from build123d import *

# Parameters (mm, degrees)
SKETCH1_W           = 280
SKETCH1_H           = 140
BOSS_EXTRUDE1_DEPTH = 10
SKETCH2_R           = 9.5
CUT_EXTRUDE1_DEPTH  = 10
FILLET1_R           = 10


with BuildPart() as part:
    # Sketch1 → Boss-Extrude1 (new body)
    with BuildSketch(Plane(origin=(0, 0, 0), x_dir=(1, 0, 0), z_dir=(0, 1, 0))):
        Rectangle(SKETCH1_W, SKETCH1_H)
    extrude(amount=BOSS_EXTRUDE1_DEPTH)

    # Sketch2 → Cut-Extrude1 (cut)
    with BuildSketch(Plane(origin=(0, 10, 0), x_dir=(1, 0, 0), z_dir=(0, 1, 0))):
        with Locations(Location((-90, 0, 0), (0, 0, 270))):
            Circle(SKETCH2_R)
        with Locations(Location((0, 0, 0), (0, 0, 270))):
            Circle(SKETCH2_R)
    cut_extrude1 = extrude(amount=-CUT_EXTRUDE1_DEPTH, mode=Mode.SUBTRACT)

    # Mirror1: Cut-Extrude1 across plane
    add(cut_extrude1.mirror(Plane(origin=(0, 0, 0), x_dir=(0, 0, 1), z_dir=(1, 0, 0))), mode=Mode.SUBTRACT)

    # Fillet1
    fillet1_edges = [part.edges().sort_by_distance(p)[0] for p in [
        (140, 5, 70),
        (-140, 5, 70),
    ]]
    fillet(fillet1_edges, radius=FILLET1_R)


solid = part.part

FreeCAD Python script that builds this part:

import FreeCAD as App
import Part
import Sketcher


def edges_at(feature, points):
    """Names of the edges that pass closest to the given points."""
    edges = feature.Shape.Edges
    near = lambda p: min(range(len(edges)), key=lambda i: edges[i].distToShape(Part.Vertex(*p))[0])
    return sorted({f"Edge{near(p) + 1}" for p in points})


def add_polygon(sketch, points):
    """Adds a closed chain of lines whose ends are joined by coincident constraints."""
    first, n = sketch.GeometryCount, len(points)
    for a, b in zip(points, points[1:] + points[:1]):
        sketch.addGeometry(Part.LineSegment(App.Vector(*a, 0), App.Vector(*b, 0)), False)
    for i in range(n):
        sketch.addConstraint(Sketcher.Constraint("Coincident", first + i, 2, first + (i + 1) % n, 1))

doc = App.newDocument("Part")
params = doc.addObject("Spreadsheet::Sheet", "Params")
for row, (alias, value) in enumerate([
    ("sketch1_width", "280 mm"),
    ("sketch1_height", "140 mm"),
    ("pad1_length", "10 mm"),
    ("sketch2_diameter", "19 mm"),
    ("pocket1_length", "10 mm"),
    ("fillet_radius", "10 mm"),
], start=1):
    params.set(f"A{row}", alias)
    params.set(f"B{row}", "=" + value)
    params.setAlias(f"B{row}", alias)

body = doc.addObject("PartDesign::Body", "Body")

# Sketch on XZ plane
sketch1 = doc.addObject("Sketcher::SketchObject", "Sketch")
body.addObject(sketch1)
sketch1.AttachmentSupport = (doc.XZ_Plane, [""])
sketch1.MapMode = "FlatFace"
add_polygon(sketch1, [(-140, -70), (-140, 70), (140, 70), (140, -70)])  # lines 0-3
sketch1.addConstraint([
    Sketcher.Constraint("Vertical", 0),
    Sketcher.Constraint("Horizontal", 1),
    Sketcher.Constraint("Vertical", 2),
    Sketcher.Constraint("Horizontal", 3),
    Sketcher.Constraint("Symmetric", 0, 2, 2, 2, -1, 1),
    Sketcher.Constraint("DistanceX", 1, 1, 1, 2, 280.0),
    Sketcher.Constraint("DistanceY", 0, 1, 0, 2, 140.0),
])
sketch1.setExpression("Constraints[9]", "Params.sketch1_width")
sketch1.setExpression("Constraints[10]", "Params.sketch1_height")
pad1 = doc.addObject("PartDesign::Pad", "Pad")
body.addObject(pad1)
pad1.Profile = sketch1
pad1.setExpression("Length", "Params.pad1_length")
pad1.Reversed = True

# Sketch on XZ plane
sketch2 = doc.addObject("Sketcher::SketchObject", "Sketch001")
body.addObject(sketch2)
sketch2.AttachmentSupport = (doc.XZ_Plane, [""])
sketch2.MapMode = "FlatFace"
sketch2.AttachmentOffset = App.Placement(App.Vector(0, 0, -10), App.Rotation())
sketch2.addGeometry([
    Part.Circle(App.Vector(-90, 0, 0), App.Vector(0, 0, 1), 9.5),
    Part.Circle(App.Vector(0, 0, 0), App.Vector(0, 0, 1), 9.5),
], False)
sketch2.addConstraint([
    Sketcher.Constraint("Coincident", 1, 3, -1, 1),
    Sketcher.Constraint("Equal", 0, 1),
    Sketcher.Constraint("PointOnObject", 0, 3, -1),
    Sketcher.Constraint("Diameter", 0, 19.0),
    Sketcher.Constraint("DistanceX", 0, 3, -1, 1, 90.0),
])
sketch2.setExpression("Constraints[3]", "Params.sketch2_diameter")
pocket1 = doc.addObject("PartDesign::Pocket", "Pocket")
body.addObject(pocket1)
pocket1.Profile = sketch2
pocket1.setExpression("Length", "Params.pocket1_length")
pocket1.Reversed = True
doc.recompute()

mirrored = doc.addObject("PartDesign::Mirrored", "Mirrored")
body.addObject(mirrored)
mirrored.Originals = [pocket1]
mirrored.MirrorPlane = (doc.YZ_Plane, [""])
body.Tip = mirrored
doc.recompute()

fillet = doc.addObject("PartDesign::Fillet", "Fillet")
body.addObject(fillet)
fillet.Base = (mirrored, edges_at(mirrored, [(140, 5, 70), (-140, 5, 70)]))
fillet.setExpression("Radius", "Params.fillet_radius")

doc.recompute()
